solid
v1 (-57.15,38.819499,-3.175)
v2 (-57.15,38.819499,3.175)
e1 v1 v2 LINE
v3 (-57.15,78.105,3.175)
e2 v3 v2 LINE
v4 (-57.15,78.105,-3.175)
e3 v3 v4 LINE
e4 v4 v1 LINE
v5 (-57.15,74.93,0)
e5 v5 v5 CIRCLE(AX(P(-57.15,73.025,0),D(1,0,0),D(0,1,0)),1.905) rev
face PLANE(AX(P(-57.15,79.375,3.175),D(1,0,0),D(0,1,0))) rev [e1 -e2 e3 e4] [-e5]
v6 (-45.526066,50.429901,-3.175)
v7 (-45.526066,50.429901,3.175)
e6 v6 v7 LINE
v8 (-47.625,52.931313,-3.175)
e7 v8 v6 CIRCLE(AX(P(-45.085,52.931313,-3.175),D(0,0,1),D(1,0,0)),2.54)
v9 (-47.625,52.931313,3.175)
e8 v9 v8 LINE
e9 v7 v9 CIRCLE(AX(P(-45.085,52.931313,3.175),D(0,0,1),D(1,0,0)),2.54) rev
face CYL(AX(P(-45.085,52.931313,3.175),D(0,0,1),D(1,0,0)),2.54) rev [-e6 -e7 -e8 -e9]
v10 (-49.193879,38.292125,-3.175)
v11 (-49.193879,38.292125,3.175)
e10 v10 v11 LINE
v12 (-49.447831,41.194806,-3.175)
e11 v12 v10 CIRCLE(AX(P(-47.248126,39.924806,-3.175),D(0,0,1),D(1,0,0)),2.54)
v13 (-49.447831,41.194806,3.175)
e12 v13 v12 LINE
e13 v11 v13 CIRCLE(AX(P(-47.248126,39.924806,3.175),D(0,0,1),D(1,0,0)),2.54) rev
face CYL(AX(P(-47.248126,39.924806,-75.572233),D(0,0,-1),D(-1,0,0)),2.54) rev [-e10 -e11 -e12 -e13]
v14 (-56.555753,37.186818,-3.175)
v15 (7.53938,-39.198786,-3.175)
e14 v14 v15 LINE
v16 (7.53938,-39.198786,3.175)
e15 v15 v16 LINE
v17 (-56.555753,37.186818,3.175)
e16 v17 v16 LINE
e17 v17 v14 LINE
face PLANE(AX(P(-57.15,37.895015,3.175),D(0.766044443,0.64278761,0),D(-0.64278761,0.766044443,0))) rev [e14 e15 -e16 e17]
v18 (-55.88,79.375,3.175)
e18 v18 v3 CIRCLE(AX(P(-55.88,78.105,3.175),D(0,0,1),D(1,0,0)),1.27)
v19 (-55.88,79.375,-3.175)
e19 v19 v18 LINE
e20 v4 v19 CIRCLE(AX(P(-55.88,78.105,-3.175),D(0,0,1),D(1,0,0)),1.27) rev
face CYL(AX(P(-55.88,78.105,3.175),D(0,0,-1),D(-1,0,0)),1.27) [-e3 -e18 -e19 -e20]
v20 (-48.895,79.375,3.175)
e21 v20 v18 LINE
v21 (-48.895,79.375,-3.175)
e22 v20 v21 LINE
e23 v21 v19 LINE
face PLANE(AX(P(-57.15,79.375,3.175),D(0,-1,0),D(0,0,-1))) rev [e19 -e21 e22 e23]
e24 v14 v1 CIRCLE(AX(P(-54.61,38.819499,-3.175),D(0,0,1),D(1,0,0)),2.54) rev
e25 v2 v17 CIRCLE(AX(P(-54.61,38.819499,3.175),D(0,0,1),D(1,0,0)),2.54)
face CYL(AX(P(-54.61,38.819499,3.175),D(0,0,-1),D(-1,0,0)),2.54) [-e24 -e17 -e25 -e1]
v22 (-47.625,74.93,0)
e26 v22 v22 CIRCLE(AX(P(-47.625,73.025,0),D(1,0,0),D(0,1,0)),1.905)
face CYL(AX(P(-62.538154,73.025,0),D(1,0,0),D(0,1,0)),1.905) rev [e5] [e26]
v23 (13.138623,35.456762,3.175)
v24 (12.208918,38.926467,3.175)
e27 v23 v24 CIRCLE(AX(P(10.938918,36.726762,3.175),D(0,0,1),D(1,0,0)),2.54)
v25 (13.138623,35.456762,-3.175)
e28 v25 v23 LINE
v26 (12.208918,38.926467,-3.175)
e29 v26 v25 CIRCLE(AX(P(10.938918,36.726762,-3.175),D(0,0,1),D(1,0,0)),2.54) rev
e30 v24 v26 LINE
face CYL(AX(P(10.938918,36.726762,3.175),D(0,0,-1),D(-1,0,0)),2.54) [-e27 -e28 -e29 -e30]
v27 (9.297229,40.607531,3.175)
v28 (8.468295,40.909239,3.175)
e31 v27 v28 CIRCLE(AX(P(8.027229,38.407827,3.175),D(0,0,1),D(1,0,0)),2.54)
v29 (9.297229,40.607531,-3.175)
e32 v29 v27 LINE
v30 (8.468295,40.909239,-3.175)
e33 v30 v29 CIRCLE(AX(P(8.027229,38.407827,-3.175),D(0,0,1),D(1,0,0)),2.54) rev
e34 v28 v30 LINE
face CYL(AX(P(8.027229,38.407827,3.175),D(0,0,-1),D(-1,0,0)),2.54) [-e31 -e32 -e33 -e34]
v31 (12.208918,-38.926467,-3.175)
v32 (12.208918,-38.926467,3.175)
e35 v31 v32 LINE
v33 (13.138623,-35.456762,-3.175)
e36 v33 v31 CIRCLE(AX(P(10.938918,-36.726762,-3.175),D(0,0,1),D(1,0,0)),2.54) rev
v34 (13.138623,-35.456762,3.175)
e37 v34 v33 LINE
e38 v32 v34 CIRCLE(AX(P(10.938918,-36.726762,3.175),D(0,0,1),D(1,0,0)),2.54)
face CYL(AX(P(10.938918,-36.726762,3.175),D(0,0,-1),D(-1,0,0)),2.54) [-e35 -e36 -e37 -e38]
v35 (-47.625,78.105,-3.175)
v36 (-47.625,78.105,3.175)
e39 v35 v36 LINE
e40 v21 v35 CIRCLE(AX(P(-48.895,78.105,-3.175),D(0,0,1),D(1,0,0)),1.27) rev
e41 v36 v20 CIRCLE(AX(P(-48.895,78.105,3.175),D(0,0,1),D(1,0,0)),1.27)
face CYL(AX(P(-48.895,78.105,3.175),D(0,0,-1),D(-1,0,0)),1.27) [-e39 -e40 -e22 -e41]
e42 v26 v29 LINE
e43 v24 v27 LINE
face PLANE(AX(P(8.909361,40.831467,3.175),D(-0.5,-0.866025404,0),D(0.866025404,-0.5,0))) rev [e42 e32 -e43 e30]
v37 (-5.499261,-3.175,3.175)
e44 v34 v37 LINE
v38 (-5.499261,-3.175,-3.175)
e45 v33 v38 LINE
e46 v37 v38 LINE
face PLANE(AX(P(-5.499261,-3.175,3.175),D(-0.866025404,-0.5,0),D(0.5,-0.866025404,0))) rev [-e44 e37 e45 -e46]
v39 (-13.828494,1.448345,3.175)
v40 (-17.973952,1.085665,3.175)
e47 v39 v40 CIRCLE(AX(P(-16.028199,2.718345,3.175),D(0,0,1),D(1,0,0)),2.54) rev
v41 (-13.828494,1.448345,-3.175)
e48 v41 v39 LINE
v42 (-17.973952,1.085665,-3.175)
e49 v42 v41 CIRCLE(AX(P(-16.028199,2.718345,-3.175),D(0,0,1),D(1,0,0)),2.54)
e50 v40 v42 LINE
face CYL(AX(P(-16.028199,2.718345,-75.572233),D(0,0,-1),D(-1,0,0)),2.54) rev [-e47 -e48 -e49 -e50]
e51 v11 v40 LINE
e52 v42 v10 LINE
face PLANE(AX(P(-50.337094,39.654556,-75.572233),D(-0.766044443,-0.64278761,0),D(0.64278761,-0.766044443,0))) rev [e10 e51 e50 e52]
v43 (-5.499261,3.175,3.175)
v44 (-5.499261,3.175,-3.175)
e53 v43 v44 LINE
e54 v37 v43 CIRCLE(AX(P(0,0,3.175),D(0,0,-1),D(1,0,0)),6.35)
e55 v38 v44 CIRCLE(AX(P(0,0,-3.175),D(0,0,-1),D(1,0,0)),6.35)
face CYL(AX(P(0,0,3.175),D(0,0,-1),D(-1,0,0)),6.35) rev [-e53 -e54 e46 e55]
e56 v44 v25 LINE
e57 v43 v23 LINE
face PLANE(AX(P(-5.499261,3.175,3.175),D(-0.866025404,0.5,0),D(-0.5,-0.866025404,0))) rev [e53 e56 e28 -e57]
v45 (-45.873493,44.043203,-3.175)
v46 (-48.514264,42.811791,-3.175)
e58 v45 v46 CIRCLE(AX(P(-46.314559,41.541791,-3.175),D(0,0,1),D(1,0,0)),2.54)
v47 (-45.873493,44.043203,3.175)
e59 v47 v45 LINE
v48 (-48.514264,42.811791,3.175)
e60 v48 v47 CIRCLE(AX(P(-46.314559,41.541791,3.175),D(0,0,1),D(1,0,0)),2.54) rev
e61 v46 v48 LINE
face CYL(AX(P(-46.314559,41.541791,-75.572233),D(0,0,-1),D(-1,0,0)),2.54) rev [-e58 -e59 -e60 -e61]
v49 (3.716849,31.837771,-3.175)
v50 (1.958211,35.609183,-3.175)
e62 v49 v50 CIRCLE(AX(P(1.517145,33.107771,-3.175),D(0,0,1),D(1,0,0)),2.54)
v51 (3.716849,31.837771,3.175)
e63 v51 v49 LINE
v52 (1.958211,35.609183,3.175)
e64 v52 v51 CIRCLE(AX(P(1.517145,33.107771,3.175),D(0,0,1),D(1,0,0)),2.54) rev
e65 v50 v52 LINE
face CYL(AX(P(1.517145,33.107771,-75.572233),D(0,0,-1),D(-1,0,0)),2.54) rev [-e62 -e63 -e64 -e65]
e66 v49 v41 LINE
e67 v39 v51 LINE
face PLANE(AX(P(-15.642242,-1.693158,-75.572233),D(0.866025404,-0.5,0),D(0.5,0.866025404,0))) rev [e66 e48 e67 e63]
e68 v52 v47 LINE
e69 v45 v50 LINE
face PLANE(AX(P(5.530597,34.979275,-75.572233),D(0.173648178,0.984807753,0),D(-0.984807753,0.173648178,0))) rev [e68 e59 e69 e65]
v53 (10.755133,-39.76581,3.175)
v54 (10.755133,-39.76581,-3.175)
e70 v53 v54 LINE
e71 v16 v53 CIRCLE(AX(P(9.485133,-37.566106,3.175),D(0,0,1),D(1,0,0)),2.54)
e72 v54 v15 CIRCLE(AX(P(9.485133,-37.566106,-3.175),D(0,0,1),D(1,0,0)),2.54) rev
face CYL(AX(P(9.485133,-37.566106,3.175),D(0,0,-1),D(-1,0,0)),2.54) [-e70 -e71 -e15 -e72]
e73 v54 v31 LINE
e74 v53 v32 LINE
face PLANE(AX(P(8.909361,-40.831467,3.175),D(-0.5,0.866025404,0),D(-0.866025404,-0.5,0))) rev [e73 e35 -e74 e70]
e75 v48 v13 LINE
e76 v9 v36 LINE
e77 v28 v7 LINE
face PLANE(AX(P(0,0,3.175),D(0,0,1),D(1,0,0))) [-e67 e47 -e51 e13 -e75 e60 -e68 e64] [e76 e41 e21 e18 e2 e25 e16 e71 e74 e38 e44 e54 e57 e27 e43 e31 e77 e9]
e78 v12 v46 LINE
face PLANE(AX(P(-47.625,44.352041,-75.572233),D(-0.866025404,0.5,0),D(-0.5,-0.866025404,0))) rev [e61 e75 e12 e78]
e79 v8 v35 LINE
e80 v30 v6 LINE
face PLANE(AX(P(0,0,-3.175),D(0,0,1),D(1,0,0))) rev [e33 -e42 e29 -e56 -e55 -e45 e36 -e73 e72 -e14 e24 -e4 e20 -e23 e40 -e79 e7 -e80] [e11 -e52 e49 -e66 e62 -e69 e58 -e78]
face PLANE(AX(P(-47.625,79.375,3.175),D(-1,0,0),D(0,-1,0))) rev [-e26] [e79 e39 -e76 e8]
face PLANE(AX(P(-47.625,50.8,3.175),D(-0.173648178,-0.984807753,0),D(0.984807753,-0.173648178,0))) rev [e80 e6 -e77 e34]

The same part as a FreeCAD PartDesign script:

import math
import FreeCAD as App
import Part
import Sketcher
from FreeCAD import Vector
Q = App.Units.Quantity


def edges_at(feature, points):
    """Names of the edges that pass closest to the given points."""
    edges = feature.Shape.Edges
    near = lambda p: min(range(len(edges)), key=lambda i: edges[i].distToShape(Part.Vertex(*p))[0])
    return sorted({f"Edge{near(p) + 1}" for p in points})


def add_polygon(sketch, points):
    """Adds a closed chain of lines whose ends are joined by coincident constraints."""
    first, n = sketch.GeometryCount, len(points)
    for a, b in zip(points, points[1:] + points[:1]):
        sketch.addGeometry(Part.LineSegment(App.Vector(*a, 0), App.Vector(*b, 0)), False)
    for i in range(n):
        sketch.addConstraint(Sketcher.Constraint("Coincident", first + i, 2, first + (i + 1) % n, 1))

doc = App.newDocument("Part")
params = doc.addObject("Spreadsheet::Sheet", "Params")
for row, (alias, value) in enumerate([
    ("sketch1_radius", "0.25 in"),
    ("sketch1_length", "0.25 in"),
    ("sketch1_width", "0.375 in"),
    ("sketch1_height", "1.125 in"),
    ("pad1_length", "0.25 in"),
    ("sketch2_diameter", "0.15 in"),
    ("pocket1_length", "0.375 in"),
    ("pocket2_length", "0.25 in"),
    ("fillet_radius", "0.1 in"),
    ("fillet2_radius", "0.05 in"),
], start=1):
    params.set(f"A{row}", alias)
    params.set(f"B{row}", "=" + value)
    params.setAlias(f"B{row}", alias)

body = doc.addObject("PartDesign::Body", "Body")

sketch1 = body.newObject("Sketcher::SketchObject", "Sketch")
sketch1.AttachmentSupport = (doc.getObject("XY_Plane"), [""])
sketch1.MapMode = "FlatFace"
sketch1.addGeometry(Part.LineSegment(Vector(-5, 3, 0), Vector(14, 38, 0)), False)
sketch1.addGeometry(Part.LineSegment(Vector(14, 38, 0), Vector(9, 41, 0)), False)
sketch1.addGeometry(Part.LineSegment(Vector(9, 41, 0), Vector(-48, 51, 0)), False)
sketch1.addGeometry(Part.LineSegment(Vector(-48, 51, 0), Vector(-48, 79, 0)), False)
sketch1.addGeometry(Part.LineSegment(Vector(-48, 79, 0), Vector(-57, 79, 0)), False)
sketch1.addGeometry(Part.LineSegment(Vector(-57, 79, 0), Vector(-57, 38, 0)), False)
sketch1.addGeometry(Part.LineSegment(Vector(-57, 38, 0), Vector(9, -41, 0)), False)
sketch1.addGeometry(Part.LineSegment(Vector(9, -41, 0), Vector(14, -38, 0)), False)
sketch1.addGeometry(Part.LineSegment(Vector(14, -38, 0), Vector(-5, -3, 0)), False)
sketch1.addGeometry(Part.ArcOfCircle(Part.Circle(Vector(0, 0, 0), Vector(0, 0, 1), 6), math.radians(150), math.radians(210)), False)
sketch1.addConstraint(Sketcher.Constraint("Coincident", 0, 2, 1, 1))
sketch1.addConstraint(Sketcher.Constraint("Coincident", 1, 2, 2, 1))
sketch1.addConstraint(Sketcher.Constraint("Coincident", 2, 2, 3, 1))
sketch1.addConstraint(Sketcher.Constraint("Coincident", 3, 2, 4, 1))
sketch1.addConstraint(Sketcher.Constraint("Coincident", 4, 2, 5, 1))
sketch1.addConstraint(Sketcher.Constraint("Coincident", 5, 2, 6, 1))
sketch1.addConstraint(Sketcher.Constraint("Coincident", 6, 2, 7, 1))
sketch1.addConstraint(Sketcher.Constraint("Coincident", 7, 2, 8, 1))
sketch1.addConstraint(Sketcher.Constraint("Tangent", 8, 2, 9, 2))
sketch1.addConstraint(Sketcher.Constraint("Tangent", 9, 1, 0, 1))
sketch1.addConstraint(Sketcher.Constraint("Vertical", 3))
sketch1.addConstraint(Sketcher.Constraint("Horizontal", 4))
sketch1.addConstraint(Sketcher.Constraint("Vertical", 5))
sketch1.addConstraint(Sketcher.Constraint("Coincident", 9, 3, -1, 1))
sketch1.addConstraint(Sketcher.Constraint("Symmetric", 1, 2, 6, 2, -1))
sketch1.addConstraint(Sketcher.Constraint("Symmetric", 0, 2, 7, 2, -1))
sketch1.addConstraint(Sketcher.Constraint("Perpendicular", 0, 1))
sketch1.addConstraint(Sketcher.Constraint("Radius", 9, Q("0.25 in")))
sketch1.addConstraint(Sketcher.Constraint("DistanceY", -1, 1, 2, 2, Q("2 in")))
sketch1.addConstraint(Sketcher.Constraint("Angle", 0, Q("60 deg")))
sketch1.addConstraint(Sketcher.Constraint("Angle", 2, Q("170 deg")))
sketch1.addConstraint(Sketcher.Constraint("Angle", 6, Q("-50 deg")))
sketch1.addConstraint(Sketcher.Constraint("Distance", 1, Q("0.25 in")))
sketch1.addConstraint(Sketcher.Constraint("DistanceX", 4, 2, 4, 1, Q("0.375 in")))
sketch1.addConstraint(Sketcher.Constraint("DistanceY", 3, 1, 3, 2, Q("1.125 in")))
sketch1.addConstraint(Sketcher.Constraint("DistanceX", 4, 2, -1, 1, Q("2.25 in")))
sketch1.setExpression("Constraints[17]", "Params.sketch1_radius")
sketch1.setExpression("Constraints[22]", "Params.sketch1_length")
sketch1.setExpression("Constraints[23]", "Params.sketch1_width")
sketch1.setExpression("Constraints[24]", "Params.sketch1_height")
pad1 = body.newObject("PartDesign::Pad", "Pad")
pad1.Profile = sketch1
pad1.setExpression("Length", "Params.pad1_length")
pad1.Midplane = True

sketch2 = body.newObject("Sketcher::SketchObject", "Sketch001")
sketch2.AttachmentSupport = (doc.getObject("YZ_Plane"), [""])
sketch2.MapMode = "FlatFace"
sketch2.AttachmentOffset = App.Placement(Vector(0, 0, -1.875 * 25.4), App.Rotation())
sketch2.addGeometry(Part.Circle(Vector(73, 0, 0), Vector(0, 0, 1), 1.9), False)
sketch2.addConstraint(Sketcher.Constraint("PointOnObject", 0, 3, -1))
sketch2.addConstraint(Sketcher.Constraint("Diameter", 0, Q("0.15 in")))
sketch2.addConstraint(Sketcher.Constraint("DistanceX", -1, 1, 0, 3, Q("2.875 in")))
sketch2.setExpression("Constraints[1]", "Params.sketch2_diameter")
pocket1 = body.newObject("PartDesign::Pocket", "Pocket")
pocket1.Profile = sketch2
pocket1.setExpression("Length", "Params.pocket1_length")

sketch3 = body.newObject("Sketcher::SketchObject", "Sketch002")
sketch3.AttachmentSupport = (doc.getObject("XY_Plane"), [""])
sketch3.MapMode = "FlatFace"
sketch3.AttachmentOffset = App.Placement(Vector(0, 0, 0.125 * 25.4), App.Rotation())
add_polygon(sketch3, [(-48, 44), (-50, 40), (-16, -2), (6, 35)])
sketch3.addConstraint(Sketcher.Constraint("Parallel", 0, 2))
sketch3.addConstraint(Sketcher.Constraint("Equal", 1, 3))
sketch3.addConstraint(Sketcher.Constraint("Angle", 0, Q("-120 deg")))
sketch3.addConstraint(Sketcher.Constraint("Angle", 1, Q("-50 deg")))
sketch3.addConstraint(Sketcher.Constraint("DistanceX", 3, 2, -1, 1, Q("1.875 in")))
sketch3.addConstraint(Sketcher.Constraint("DistanceY", 1, 2, 3, 2, Q("46.045199 mm")))
sketch3.addConstraint(Sketcher.Constraint("Distance", 0, Q("5.424188 mm")))
sketch3.addConstraint(Sketcher.Constraint("DistanceY", 1, 2, -1, 1, Q("1.693158 mm")))
pocket2 = body.newObject("PartDesign::Pocket", "Pocket001")
pocket2.Profile = sketch3
pocket2.setExpression("Length", "Params.pocket2_length")
doc.recompute()

fillet = body.newObject("PartDesign::Fillet", "Fillet")
fillet.Base = (pocket2, edges_at(pocket2, [
    (-47.625, 50.8, 0),
    (8.909, 40.831, 0),
    (14.409, 37.656, 0),
    (14.409, -37.656, 0),
    (8.909, -40.831, 0),
    (-57.15, 37.895, 0),
    (-47.625, 44.352, 0),
    (5.531, 34.979, 0),
    (-15.642, -1.693, 0),
    (-50.337, 39.655, 0),
]))
fillet.setExpression("Radius", "Params.fillet_radius")
doc.recompute()

fillet2 = body.newObject("PartDesign::Fillet", "Fillet001")
fillet2.Base = (fillet, edges_at(fillet, [(-57.15, 79.375, 0), (-47.625, 79.375, 0)]))
fillet2.setExpression("Radius", "Params.fillet2_radius")

doc.recompute()
